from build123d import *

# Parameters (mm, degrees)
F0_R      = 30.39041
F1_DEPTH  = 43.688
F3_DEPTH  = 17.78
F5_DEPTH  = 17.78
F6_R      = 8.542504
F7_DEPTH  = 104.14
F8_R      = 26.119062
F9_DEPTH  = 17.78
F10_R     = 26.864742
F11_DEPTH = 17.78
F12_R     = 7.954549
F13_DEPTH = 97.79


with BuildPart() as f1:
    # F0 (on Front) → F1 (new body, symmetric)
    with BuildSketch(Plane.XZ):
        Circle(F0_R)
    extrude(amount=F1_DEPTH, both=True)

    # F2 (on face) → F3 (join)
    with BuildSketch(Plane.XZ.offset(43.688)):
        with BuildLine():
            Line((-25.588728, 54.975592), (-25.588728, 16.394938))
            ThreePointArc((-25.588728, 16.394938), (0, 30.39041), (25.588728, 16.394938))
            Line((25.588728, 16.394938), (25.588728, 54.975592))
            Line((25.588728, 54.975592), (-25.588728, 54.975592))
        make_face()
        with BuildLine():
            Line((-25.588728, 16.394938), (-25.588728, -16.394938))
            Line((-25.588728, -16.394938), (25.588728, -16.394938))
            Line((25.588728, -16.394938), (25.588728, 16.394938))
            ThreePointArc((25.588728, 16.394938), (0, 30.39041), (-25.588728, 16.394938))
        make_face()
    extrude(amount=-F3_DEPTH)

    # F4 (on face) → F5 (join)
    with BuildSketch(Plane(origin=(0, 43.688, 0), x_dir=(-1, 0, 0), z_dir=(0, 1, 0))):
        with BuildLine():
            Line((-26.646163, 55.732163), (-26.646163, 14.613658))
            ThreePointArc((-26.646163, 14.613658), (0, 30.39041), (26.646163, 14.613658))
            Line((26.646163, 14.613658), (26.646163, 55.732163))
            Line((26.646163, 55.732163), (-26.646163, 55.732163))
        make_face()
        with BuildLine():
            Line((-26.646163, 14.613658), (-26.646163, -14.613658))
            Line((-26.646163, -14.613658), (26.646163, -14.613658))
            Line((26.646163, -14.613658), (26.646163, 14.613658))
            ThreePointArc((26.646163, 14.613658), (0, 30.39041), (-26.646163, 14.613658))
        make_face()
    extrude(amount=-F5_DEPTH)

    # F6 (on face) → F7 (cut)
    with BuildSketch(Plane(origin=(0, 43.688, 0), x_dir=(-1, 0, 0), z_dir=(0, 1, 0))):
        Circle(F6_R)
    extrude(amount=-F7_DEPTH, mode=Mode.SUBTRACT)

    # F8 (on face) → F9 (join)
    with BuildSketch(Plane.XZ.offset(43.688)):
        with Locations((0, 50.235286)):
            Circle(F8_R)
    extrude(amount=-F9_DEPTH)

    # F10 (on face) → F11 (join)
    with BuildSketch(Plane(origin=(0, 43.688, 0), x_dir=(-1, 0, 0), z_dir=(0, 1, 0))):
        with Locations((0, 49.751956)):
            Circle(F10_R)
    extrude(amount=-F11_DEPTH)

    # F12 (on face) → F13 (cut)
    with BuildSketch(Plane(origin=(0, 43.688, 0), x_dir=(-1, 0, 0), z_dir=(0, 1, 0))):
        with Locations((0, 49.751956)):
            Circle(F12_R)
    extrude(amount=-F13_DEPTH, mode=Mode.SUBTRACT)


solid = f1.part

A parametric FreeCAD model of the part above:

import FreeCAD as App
import Part
import Sketcher

V = App.Vector
Q = App.Units.Quantity

doc = App.newDocument("Part")
body = doc.addObject("PartDesign::Body", "Body")

sketch1 = doc.addObject("Sketcher::SketchObject", "Sketch")
body.addObject(sketch1)
sketch1.AttachmentSupport = (doc.XZ_Plane, [""])
sketch1.MapMode = "FlatFace"
sketch1.addGeometry(Part.Circle(V(0, 0, 0), V(0, 0, 1), 30), False)
sketch1.addConstraint([
    Sketcher.Constraint("Coincident", 0, 3, -1, 1),
    Sketcher.Constraint("Diameter", 0, 60.78082),
])
pad1 = doc.addObject("PartDesign::Pad", "Pad")
body.addObject(pad1)
pad1.Profile = sketch1
pad1.Length = Q("3.44 in")
pad1.Midplane = True

sketch2 = doc.addObject("Sketcher::SketchObject", "Sketch001")
body.addObject(sketch2)
sketch2.AttachmentSupport = (doc.XZ_Plane, [""])
sketch2.MapMode = "FlatFace"
sketch2.AttachmentOffset = App.Placement(V(0, 0, 1.72 * 25.4), App.Rotation())
sketch2.addGeometry([
    Part.LineSegment(V(-26, 55, 0), V(-26, -16, 0)),
    Part.LineSegment(V(-26, -16, 0), V(26, -16, 0)),
    Part.LineSegment(V(26, -16, 0), V(26, 55, 0)),
    Part.LineSegment(V(26, 55, 0), V(-26, 55, 0)),
], False)
sketch2.addConstraint([
    Sketcher.Constraint("Coincident", 0, 2, 1, 1),
    Sketcher.Constraint("Coincident", 1, 2, 2, 1),
    Sketcher.Constraint("Coincident", 2, 2, 3, 1),
    Sketcher.Constraint("Coincident", 3, 2, 0, 1),
    Sketcher.Constraint("Vertical", 0),
    Sketcher.Constraint("Horizontal", 1),
    Sketcher.Constraint("Vertical", 2),
    Sketcher.Constraint("Horizontal", 3),
    Sketcher.Constraint("DistanceY", 0, 2, 0, 1, 71.37053),
    Sketcher.Constraint("DistanceX", 1, 1, 1, 2, 51.177456),
    Sketcher.Constraint("DistanceY", 0, 2, -1, 1, 16.394938),
    Sketcher.Constraint("DistanceX", 0, 2, -1, 1, 25.588728),
])
pad2 = doc.addObject("PartDesign::Pad", "Pad001")
body.addObject(pad2)
pad2.Profile = sketch2
pad2.Length = Q("0.7 in")
pad2.Reversed = True

sketch3 = doc.addObject("Sketcher::SketchObject", "Sketch002")
body.addObject(sketch3)
sketch3.AttachmentSupport = (doc.XZ_Plane, [""])
sketch3.MapMode = "FlatFace"
sketch3.AttachmentOffset = App.Placement(V(0, 0, -1.72 * 25.4), App.Rotation())
sketch3.addGeometry([
    Part.LineSegment(V(27, 56, 0), V(27, -15, 0)),
    Part.LineSegment(V(27, -15, 0), V(-27, -15, 0)),
    Part.LineSegment(V(-27, -15, 0), V(-27, 56, 0)),
    Part.LineSegment(V(-27, 56, 0), V(27, 56, 0)),
], False)
sketch3.addConstraint([
    Sketcher.Constraint("Coincident", 0, 2, 1, 1),
    Sketcher.Constraint("Coincident", 1, 2, 2, 1),
    Sketcher.Constraint("Coincident", 2, 2, 3, 1),
    Sketcher.Constraint("Coincident", 3, 2, 0, 1),
    Sketcher.Constraint("Vertical", 0),
    Sketcher.Constraint("Horizontal", 1),
    Sketcher.Constraint("Vertical", 2),
    Sketcher.Constraint("Horizontal", 3),
    Sketcher.Constraint("DistanceY", 0, 2, 0, 1, 70.345821),
    Sketcher.Constraint("DistanceX", 1, 2, 1, 1, 53.292326),
    Sketcher.Constraint("DistanceX", -1, 1, 0, 2, 26.646163),
    Sketcher.Constraint("DistanceY", 0, 2, -1, 1, 14.613658),
])
pad3 = doc.addObject("PartDesign::Pad", "Pad002")
body.addObject(pad3)
pad3.Profile = sketch3
pad3.Length = Q("0.7 in")

sketch4 = doc.addObject("Sketcher::SketchObject", "Sketch003")
body.addObject(sketch4)
sketch4.AttachmentSupport = (doc.XZ_Plane, [""])
sketch4.MapMode = "FlatFace"
sketch4.AttachmentOffset = App.Placement(V(0, 0, -1.72 * 25.4), App.Rotation())
sketch4.addGeometry(Part.Circle(V(0, 0, 0), V(0, 0, 1), 9), False)
sketch4.addConstraint([
    Sketcher.Constraint("Coincident", 0, 3, -1, 1),
    Sketcher.Constraint("Diameter", 0, 17.085008),
])
pocket1 = doc.addObject("PartDesign::Pocket", "Pocket")
body.addObject(pocket1)
pocket1.Profile = sketch4
pocket1.Length = Q("4.1 in")
pocket1.Reversed = True

sketch5 = doc.addObject("Sketcher::SketchObject", "Sketch004")
body.addObject(sketch5)
sketch5.AttachmentSupport = (doc.XZ_Plane, [""])
sketch5.MapMode = "FlatFace"
sketch5.AttachmentOffset = App.Placement(V(0, 0, 1.72 * 25.4), App.Rotation())
sketch5.addGeometry(Part.Circle(V(0, 50, 0), V(0, 0, 1), 26), False)
sketch5.addConstraint([
    Sketcher.Constraint("PointOnObject", 0, 3, -2),
    Sketcher.Constraint("Diameter", 0, 52.238124),
    Sketcher.Constraint("DistanceY", -1, 1, 0, 3, 50.235286),
])
pad4 = doc.addObject("PartDesign::Pad", "Pad003")
body.addObject(pad4)
pad4.Profile = sketch5
pad4.Length = Q("0.7 in")
pad4.Reversed = True

sketch6 = doc.addObject("Sketcher::SketchObject", "Sketch005")
body.addObject(sketch6)
sketch6.AttachmentSupport = (doc.XZ_Plane, [""])
sketch6.MapMode = "FlatFace"
sketch6.AttachmentOffset = App.Placement(V(0, 0, -1.72 * 25.4), App.Rotation())
sketch6.addGeometry(Part.Circle(V(0, 50, 0), V(0, 0, 1), 27), False)
sketch6.addConstraint([
    Sketcher.Constraint("PointOnObject", 0, 3, -2),
    Sketcher.Constraint("Diameter", 0, 53.729484),
    Sketcher.Constraint("DistanceY", -1, 1, 0, 3, 49.751956),
])
pad5 = doc.addObject("PartDesign::Pad", "Pad004")
body.addObject(pad5)
pad5.Profile = sketch6
pad5.Length = Q("0.7 in")

sketch7 = doc.addObject("Sketcher::SketchObject", "Sketch006")
body.addObject(sketch7)
sketch7.AttachmentSupport = (doc.XZ_Plane, [""])
sketch7.MapMode = "FlatFace"
sketch7.AttachmentOffset = App.Placement(V(0, 0, -1.72 * 25.4), App.Rotation())
sketch7.addGeometry(Part.Circle(V(0, 50, 0), V(0, 0, 1), 8), False)
sketch7.addConstraint([
    Sketcher.Constraint("PointOnObject", 0, 3, -2),
    Sketcher.Constraint("Diameter", 0, 15.909098),
    Sketcher.Constraint("DistanceY", -1, 1, 0, 3, 49.751956),
])
pocket2 = doc.addObject("PartDesign::Pocket", "Pocket001")
body.addObject(pocket2)
pocket2.Profile = sketch7
pocket2.Length = Q("3.85 in")
pocket2.Reversed = True

doc.recompute()
